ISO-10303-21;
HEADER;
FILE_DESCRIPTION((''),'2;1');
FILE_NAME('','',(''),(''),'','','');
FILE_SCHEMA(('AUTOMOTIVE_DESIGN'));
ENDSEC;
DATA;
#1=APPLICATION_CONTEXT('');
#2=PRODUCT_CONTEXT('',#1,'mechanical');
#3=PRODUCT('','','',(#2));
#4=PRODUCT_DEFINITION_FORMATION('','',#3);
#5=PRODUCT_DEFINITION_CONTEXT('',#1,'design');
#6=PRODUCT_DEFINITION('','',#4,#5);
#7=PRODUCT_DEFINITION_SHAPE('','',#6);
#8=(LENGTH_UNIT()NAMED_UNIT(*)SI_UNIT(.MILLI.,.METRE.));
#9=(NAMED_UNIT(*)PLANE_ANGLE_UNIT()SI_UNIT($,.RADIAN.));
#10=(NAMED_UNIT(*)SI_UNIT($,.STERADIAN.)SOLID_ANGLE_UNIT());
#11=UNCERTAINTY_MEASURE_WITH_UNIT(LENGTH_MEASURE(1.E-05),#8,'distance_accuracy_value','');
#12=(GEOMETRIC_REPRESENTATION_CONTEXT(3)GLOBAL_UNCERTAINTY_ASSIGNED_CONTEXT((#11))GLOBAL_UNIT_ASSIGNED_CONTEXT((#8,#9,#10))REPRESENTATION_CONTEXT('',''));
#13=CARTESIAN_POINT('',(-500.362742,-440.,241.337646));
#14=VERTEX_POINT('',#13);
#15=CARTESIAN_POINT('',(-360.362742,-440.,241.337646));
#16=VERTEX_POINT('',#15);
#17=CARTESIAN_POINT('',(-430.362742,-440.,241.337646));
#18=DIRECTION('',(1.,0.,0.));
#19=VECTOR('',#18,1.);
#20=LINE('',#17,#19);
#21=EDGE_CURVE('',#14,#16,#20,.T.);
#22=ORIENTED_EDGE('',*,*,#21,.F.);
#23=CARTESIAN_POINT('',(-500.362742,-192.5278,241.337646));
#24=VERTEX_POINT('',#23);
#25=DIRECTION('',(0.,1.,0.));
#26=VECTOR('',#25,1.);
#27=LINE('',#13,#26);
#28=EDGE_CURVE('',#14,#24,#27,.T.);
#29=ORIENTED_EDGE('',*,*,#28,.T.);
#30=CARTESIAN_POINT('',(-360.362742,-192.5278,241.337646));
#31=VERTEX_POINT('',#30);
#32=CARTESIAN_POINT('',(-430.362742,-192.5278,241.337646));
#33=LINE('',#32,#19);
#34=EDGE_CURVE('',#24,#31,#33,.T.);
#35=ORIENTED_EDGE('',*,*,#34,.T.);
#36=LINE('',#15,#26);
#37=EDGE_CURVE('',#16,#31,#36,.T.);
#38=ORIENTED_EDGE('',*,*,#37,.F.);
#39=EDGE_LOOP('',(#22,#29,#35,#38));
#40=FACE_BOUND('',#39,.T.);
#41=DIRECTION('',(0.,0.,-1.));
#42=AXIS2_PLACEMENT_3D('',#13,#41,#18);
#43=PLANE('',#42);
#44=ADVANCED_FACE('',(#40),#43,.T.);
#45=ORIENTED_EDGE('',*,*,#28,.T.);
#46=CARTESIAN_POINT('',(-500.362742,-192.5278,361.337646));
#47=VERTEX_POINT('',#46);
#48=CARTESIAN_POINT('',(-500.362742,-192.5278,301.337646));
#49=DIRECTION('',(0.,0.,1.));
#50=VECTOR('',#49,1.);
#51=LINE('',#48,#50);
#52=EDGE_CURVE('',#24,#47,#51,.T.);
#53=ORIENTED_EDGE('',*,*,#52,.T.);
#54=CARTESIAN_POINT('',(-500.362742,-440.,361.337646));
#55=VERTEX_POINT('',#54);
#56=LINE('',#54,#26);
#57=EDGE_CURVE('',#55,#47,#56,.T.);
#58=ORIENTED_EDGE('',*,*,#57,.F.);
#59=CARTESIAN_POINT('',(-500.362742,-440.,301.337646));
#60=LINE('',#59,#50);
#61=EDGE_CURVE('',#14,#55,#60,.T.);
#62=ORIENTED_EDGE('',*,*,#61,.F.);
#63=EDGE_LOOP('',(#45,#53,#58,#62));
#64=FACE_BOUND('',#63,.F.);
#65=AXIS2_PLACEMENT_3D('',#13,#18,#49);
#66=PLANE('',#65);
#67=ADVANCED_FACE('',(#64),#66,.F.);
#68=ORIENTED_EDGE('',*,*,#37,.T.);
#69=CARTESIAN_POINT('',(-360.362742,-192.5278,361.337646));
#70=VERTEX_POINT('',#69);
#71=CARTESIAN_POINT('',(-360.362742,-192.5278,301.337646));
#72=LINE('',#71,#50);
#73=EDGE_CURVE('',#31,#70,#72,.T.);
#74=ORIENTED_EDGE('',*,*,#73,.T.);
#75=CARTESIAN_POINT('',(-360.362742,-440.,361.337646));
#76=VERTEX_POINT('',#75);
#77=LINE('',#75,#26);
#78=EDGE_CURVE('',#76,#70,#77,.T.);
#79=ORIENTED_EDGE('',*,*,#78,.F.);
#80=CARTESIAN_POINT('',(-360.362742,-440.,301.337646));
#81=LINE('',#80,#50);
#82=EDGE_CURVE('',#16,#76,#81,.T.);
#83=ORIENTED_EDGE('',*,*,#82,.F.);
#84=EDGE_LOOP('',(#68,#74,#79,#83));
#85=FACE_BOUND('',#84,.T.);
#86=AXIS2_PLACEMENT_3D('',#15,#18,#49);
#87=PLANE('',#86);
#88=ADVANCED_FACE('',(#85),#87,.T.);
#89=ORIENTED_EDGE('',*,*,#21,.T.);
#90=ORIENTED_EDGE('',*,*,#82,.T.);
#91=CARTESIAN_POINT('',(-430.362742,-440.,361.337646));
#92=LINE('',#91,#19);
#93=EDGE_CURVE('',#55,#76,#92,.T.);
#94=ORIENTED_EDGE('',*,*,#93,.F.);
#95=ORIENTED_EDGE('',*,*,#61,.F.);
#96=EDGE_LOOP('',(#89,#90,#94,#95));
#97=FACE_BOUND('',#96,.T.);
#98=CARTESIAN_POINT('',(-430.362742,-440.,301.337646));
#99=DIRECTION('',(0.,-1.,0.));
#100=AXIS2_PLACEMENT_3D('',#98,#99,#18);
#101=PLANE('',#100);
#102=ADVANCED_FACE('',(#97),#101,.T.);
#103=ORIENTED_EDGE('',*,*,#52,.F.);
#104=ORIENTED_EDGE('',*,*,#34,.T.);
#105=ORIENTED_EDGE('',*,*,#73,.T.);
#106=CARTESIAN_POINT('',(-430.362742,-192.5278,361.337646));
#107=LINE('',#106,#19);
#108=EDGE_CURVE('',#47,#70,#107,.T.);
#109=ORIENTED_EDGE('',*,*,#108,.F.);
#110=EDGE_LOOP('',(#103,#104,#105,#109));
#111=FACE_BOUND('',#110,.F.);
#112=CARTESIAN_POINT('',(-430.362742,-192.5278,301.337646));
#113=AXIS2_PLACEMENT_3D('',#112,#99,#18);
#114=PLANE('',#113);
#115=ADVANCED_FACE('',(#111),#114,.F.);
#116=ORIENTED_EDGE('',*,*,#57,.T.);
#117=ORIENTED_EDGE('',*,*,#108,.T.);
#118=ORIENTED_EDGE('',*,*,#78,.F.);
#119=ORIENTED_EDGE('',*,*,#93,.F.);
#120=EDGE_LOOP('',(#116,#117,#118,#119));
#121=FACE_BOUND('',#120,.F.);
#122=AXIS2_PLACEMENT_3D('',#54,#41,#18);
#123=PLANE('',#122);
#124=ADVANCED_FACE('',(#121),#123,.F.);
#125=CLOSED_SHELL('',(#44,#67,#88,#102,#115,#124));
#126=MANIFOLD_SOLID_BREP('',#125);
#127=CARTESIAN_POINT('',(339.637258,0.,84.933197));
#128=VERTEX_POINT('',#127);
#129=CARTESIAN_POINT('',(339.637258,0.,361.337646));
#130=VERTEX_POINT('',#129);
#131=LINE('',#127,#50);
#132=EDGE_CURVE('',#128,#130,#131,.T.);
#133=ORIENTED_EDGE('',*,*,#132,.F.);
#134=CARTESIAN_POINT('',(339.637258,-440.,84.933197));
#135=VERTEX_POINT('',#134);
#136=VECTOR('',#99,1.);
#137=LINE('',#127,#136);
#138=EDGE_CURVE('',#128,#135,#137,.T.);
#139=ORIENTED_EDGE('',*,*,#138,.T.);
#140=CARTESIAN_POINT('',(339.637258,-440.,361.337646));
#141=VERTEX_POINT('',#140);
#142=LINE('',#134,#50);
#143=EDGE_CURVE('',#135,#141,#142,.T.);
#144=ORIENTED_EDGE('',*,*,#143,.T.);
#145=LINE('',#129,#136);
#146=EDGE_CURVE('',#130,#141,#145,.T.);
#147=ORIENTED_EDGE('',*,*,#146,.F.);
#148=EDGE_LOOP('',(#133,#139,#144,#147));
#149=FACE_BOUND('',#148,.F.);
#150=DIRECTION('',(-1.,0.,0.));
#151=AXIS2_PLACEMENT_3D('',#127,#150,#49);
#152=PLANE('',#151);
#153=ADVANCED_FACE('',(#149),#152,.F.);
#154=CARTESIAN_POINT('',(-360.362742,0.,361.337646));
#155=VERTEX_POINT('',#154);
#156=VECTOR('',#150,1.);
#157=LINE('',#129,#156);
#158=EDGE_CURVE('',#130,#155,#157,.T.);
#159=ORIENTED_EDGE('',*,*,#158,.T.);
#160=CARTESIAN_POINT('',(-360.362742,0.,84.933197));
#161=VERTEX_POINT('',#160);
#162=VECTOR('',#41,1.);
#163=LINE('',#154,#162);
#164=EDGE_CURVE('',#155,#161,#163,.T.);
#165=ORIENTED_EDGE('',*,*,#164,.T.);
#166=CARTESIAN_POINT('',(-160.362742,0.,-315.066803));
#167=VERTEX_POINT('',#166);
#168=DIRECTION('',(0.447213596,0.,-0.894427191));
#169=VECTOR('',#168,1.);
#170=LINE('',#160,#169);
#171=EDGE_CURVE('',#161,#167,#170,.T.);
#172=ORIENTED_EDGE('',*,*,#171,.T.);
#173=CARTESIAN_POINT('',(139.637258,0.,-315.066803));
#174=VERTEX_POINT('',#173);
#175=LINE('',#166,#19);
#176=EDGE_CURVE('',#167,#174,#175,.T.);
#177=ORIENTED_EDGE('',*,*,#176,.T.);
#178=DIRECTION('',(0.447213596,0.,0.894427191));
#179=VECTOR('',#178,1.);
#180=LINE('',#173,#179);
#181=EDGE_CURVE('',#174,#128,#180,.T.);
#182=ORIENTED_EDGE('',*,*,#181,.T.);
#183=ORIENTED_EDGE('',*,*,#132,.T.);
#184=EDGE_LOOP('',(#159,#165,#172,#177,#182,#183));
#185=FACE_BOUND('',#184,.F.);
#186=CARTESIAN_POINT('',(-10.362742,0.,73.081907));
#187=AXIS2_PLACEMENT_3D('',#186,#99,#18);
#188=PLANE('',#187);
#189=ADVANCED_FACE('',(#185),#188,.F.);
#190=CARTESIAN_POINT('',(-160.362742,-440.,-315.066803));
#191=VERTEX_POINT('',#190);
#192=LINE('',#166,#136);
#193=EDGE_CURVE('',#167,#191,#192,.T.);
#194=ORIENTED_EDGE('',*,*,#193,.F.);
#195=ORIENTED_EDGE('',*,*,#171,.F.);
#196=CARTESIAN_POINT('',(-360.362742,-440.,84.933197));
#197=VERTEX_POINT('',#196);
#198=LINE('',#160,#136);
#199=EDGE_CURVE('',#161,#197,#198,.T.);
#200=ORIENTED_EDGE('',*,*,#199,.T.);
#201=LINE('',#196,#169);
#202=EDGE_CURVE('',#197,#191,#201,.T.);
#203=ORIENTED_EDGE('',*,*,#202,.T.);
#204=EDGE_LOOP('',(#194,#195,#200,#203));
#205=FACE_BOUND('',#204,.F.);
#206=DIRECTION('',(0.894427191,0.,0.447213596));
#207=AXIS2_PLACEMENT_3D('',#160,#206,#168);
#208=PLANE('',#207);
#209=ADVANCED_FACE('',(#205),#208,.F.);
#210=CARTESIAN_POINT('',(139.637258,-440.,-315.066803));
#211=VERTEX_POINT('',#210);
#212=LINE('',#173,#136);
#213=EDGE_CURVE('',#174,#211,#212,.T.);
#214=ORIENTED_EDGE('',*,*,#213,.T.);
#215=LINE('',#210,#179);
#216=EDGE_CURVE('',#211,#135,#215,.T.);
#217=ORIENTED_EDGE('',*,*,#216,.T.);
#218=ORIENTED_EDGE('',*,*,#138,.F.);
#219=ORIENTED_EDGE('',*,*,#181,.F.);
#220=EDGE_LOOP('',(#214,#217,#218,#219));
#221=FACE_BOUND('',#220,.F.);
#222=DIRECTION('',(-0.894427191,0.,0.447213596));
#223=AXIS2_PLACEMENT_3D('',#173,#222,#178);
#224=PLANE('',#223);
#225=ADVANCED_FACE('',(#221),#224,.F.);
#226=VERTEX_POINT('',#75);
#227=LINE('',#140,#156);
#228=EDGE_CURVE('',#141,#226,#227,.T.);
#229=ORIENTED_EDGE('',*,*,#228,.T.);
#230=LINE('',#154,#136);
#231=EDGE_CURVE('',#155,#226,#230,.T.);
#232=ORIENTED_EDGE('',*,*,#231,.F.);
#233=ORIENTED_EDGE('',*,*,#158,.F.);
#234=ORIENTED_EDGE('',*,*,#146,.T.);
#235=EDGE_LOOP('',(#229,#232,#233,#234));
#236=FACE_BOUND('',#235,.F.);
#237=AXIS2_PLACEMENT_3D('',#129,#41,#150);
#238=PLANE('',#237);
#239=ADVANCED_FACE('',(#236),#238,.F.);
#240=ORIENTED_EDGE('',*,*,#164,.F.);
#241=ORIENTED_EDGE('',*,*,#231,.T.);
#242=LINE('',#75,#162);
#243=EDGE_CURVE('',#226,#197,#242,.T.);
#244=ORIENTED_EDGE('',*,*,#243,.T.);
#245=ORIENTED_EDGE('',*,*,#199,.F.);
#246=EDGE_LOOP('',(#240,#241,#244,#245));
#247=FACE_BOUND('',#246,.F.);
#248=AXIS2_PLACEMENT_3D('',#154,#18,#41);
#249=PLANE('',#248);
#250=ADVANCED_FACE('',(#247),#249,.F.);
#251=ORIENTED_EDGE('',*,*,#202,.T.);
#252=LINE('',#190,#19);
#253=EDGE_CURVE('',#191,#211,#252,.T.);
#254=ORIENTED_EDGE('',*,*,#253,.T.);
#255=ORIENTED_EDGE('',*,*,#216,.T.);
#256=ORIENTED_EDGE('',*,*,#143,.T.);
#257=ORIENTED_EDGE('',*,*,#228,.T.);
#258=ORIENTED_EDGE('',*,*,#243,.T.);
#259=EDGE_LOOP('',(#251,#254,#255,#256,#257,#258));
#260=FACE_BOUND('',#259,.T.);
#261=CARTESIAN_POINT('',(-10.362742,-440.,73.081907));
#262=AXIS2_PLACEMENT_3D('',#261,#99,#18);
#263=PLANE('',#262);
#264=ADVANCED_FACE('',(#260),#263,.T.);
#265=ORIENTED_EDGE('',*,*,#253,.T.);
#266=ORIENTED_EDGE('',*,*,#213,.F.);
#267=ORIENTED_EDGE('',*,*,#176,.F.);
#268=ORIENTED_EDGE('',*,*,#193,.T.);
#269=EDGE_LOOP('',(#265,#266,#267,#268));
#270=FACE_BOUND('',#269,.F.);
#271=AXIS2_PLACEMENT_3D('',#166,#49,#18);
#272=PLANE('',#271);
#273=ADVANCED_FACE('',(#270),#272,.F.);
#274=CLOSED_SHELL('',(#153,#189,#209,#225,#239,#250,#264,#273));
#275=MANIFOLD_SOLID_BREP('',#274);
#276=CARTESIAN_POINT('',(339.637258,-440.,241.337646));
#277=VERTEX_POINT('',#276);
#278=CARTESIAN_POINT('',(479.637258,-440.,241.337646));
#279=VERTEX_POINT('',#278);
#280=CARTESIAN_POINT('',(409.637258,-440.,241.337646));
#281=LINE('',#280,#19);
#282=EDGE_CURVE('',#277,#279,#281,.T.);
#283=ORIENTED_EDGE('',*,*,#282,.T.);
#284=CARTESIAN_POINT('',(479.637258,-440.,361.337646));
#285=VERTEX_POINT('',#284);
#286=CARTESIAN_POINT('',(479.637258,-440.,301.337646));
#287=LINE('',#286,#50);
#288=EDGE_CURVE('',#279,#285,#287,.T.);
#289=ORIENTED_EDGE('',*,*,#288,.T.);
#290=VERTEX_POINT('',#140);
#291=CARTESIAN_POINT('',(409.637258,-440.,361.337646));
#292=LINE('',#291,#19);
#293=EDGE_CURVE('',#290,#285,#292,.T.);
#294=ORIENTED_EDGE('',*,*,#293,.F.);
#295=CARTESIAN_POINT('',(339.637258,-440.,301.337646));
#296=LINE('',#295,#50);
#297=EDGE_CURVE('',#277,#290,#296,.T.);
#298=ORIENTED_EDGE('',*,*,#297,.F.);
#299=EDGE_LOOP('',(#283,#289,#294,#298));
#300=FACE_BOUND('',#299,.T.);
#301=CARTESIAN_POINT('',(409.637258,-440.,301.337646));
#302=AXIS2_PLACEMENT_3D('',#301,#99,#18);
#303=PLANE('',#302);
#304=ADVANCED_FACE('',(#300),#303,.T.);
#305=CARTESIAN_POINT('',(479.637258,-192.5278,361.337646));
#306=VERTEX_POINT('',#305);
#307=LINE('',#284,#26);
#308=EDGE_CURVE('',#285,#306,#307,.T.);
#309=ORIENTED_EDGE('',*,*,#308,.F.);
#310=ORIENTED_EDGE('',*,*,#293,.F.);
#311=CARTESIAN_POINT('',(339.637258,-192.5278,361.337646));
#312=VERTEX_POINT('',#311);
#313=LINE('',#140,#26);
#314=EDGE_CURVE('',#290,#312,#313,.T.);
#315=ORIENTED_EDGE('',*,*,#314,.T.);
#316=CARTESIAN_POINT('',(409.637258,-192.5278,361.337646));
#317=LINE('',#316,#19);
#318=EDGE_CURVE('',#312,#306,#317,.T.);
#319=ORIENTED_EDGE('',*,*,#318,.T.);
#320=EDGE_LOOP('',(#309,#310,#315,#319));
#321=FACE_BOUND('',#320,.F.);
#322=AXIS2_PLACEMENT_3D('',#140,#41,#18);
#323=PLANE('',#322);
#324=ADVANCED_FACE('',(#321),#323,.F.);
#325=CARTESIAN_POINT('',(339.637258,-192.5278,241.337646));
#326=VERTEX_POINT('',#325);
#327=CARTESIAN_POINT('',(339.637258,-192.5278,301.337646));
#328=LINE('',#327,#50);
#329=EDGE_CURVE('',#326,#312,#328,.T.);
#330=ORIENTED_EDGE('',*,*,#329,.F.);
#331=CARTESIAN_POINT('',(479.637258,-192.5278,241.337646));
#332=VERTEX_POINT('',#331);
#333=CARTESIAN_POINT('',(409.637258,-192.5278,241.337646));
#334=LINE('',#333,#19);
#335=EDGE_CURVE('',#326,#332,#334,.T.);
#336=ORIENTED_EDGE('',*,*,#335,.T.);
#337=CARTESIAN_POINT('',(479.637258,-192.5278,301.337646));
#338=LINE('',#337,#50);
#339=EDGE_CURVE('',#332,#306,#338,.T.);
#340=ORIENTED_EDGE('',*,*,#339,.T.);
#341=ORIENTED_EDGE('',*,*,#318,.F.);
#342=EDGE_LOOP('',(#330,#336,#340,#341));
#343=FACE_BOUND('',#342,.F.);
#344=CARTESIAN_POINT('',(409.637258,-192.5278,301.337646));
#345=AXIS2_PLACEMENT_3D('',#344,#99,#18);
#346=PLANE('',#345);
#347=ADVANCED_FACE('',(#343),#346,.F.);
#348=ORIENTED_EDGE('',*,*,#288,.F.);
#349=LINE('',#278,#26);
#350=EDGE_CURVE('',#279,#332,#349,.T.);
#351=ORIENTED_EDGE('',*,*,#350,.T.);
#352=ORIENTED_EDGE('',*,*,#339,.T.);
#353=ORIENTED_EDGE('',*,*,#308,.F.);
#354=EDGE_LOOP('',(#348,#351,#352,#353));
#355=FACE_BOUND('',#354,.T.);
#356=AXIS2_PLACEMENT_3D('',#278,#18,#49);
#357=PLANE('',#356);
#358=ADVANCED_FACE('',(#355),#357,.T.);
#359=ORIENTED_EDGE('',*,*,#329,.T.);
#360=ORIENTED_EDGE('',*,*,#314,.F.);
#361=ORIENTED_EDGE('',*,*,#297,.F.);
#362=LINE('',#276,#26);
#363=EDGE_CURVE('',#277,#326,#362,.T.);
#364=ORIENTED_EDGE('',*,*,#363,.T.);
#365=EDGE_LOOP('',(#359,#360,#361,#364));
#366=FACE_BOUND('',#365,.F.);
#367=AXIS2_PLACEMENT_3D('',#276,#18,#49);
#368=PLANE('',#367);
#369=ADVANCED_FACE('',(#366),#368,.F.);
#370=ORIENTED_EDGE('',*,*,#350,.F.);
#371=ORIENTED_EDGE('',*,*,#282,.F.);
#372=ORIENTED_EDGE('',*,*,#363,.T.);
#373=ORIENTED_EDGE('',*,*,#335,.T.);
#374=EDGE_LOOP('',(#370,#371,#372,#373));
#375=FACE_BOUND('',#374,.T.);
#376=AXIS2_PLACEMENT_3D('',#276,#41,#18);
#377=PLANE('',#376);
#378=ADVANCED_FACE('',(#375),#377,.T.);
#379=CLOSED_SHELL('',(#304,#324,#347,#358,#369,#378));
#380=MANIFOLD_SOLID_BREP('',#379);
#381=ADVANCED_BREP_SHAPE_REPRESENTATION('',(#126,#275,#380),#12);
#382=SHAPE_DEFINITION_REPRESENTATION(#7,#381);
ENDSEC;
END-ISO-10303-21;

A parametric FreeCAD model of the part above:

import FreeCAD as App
import Part
import Sketcher
from FreeCAD import Vector


def add_polygon(sketch, points):
    """Adds a closed chain of lines whose ends are joined by coincident constraints."""
    first, n = sketch.GeometryCount, len(points)
    for a, b in zip(points, points[1:] + points[:1]):
        sketch.addGeometry(Part.LineSegment(App.Vector(*a, 0), App.Vector(*b, 0)), False)
    for i in range(n):
        sketch.addConstraint(Sketcher.Constraint("Coincident", first + i, 2, first + (i + 1) % n, 1))

doc = App.newDocument("Part")
body = doc.addObject("PartDesign::Body", "Body")

# Sketch on XZ plane
sketch1 = body.newObject("Sketcher::SketchObject", "Sketch")
sketch1.AttachmentSupport = (doc.getObject("XZ_Plane"), [""])
sketch1.MapMode = "FlatFace"
add_polygon(sketch1, [(-160, -315), (140, -315), (340, 85), (340, 361), (-360, 361), (-360, 85)])  # lines 0-5
sketch1.addConstraint([
    Sketcher.Constraint("Horizontal", 0),
    Sketcher.Constraint("Vertical", 2),
    Sketcher.Constraint("Horizontal", 3),
    Sketcher.Constraint("Vertical", 4),
    Sketcher.Constraint("Horizontal", 1, 2, 4, 2),
    Sketcher.Constraint("Equal", 1, 5),
    Sketcher.Constraint("DistanceX", 0, 1, 0, 2, 300.0),
    Sketcher.Constraint("DistanceX", 3, 2, 3, 1, 700.0),
    Sketcher.Constraint("DistanceY", 0, 2, 1, 2, 400.0),
    Sketcher.Constraint("DistanceY", 2, 1, 2, 2, 276.404449),
    Sketcher.Constraint("DistanceX", -1, 1, 0, 2, 139.637258),
    Sketcher.Constraint("DistanceY", 0, 2, -1, 1, 315.066803),
])
pad1 = body.newObject("PartDesign::Pad", "Pad")
pad1.Profile = sketch1
pad1.Length = 440
body2 = doc.addObject("PartDesign::Body", "Body001")
body2.AllowCompound = True

# Sketch on XZ plane
sketch2 = body2.newObject("Sketcher::SketchObject", "Sketch001")
sketch2.AttachmentSupport = (doc.getObject("XZ_Plane001"), [""])
sketch2.MapMode = "FlatFace"
sketch2.AttachmentOffset = App.Placement(Vector(0, 0, 440), App.Rotation())
add_polygon(sketch2, [(-500, 361), (-500, 241), (-360, 241), (-360, 361)])  # lines 0-3
add_polygon(sketch2, [(340, 361), (340, 241), (480, 241), (480, 361)])  # lines 4-7
sketch2.addConstraint([
    Sketcher.Constraint("Vertical", 0),
    Sketcher.Constraint("Horizontal", 1),
    Sketcher.Constraint("Vertical", 2),
    Sketcher.Constraint("Horizontal", 3),
    Sketcher.Constraint("Vertical", 4),
    Sketcher.Constraint("Horizontal", 5),
    Sketcher.Constraint("Vertical", 6),
    Sketcher.Constraint("Horizontal", 7),
    Sketcher.Constraint("Horizontal", 1, 2, 4, 2),
    Sketcher.Constraint("Horizontal", 3, 2, 6, 2),
    Sketcher.Constraint("Equal", 3, 5),
    Sketcher.Constraint("DistanceX", 1, 1, 1, 2, 140.0),
    Sketcher.Constraint("DistanceY", 0, 2, 0, 1, 120.0),
    Sketcher.Constraint("DistanceX", 1, 2, 4, 2, 700.0),
    Sketcher.Constraint("DistanceX", 0, 2, -1, 1, 500.362742),
    Sketcher.Constraint("DistanceY", -1, 1, 0, 2, 241.337646),
])
pad2 = body2.newObject("PartDesign::Pad", "Pad001")
pad2.Profile = sketch2
pad2.Length = 247.4722
pad2.Reversed = True

doc.recompute()
